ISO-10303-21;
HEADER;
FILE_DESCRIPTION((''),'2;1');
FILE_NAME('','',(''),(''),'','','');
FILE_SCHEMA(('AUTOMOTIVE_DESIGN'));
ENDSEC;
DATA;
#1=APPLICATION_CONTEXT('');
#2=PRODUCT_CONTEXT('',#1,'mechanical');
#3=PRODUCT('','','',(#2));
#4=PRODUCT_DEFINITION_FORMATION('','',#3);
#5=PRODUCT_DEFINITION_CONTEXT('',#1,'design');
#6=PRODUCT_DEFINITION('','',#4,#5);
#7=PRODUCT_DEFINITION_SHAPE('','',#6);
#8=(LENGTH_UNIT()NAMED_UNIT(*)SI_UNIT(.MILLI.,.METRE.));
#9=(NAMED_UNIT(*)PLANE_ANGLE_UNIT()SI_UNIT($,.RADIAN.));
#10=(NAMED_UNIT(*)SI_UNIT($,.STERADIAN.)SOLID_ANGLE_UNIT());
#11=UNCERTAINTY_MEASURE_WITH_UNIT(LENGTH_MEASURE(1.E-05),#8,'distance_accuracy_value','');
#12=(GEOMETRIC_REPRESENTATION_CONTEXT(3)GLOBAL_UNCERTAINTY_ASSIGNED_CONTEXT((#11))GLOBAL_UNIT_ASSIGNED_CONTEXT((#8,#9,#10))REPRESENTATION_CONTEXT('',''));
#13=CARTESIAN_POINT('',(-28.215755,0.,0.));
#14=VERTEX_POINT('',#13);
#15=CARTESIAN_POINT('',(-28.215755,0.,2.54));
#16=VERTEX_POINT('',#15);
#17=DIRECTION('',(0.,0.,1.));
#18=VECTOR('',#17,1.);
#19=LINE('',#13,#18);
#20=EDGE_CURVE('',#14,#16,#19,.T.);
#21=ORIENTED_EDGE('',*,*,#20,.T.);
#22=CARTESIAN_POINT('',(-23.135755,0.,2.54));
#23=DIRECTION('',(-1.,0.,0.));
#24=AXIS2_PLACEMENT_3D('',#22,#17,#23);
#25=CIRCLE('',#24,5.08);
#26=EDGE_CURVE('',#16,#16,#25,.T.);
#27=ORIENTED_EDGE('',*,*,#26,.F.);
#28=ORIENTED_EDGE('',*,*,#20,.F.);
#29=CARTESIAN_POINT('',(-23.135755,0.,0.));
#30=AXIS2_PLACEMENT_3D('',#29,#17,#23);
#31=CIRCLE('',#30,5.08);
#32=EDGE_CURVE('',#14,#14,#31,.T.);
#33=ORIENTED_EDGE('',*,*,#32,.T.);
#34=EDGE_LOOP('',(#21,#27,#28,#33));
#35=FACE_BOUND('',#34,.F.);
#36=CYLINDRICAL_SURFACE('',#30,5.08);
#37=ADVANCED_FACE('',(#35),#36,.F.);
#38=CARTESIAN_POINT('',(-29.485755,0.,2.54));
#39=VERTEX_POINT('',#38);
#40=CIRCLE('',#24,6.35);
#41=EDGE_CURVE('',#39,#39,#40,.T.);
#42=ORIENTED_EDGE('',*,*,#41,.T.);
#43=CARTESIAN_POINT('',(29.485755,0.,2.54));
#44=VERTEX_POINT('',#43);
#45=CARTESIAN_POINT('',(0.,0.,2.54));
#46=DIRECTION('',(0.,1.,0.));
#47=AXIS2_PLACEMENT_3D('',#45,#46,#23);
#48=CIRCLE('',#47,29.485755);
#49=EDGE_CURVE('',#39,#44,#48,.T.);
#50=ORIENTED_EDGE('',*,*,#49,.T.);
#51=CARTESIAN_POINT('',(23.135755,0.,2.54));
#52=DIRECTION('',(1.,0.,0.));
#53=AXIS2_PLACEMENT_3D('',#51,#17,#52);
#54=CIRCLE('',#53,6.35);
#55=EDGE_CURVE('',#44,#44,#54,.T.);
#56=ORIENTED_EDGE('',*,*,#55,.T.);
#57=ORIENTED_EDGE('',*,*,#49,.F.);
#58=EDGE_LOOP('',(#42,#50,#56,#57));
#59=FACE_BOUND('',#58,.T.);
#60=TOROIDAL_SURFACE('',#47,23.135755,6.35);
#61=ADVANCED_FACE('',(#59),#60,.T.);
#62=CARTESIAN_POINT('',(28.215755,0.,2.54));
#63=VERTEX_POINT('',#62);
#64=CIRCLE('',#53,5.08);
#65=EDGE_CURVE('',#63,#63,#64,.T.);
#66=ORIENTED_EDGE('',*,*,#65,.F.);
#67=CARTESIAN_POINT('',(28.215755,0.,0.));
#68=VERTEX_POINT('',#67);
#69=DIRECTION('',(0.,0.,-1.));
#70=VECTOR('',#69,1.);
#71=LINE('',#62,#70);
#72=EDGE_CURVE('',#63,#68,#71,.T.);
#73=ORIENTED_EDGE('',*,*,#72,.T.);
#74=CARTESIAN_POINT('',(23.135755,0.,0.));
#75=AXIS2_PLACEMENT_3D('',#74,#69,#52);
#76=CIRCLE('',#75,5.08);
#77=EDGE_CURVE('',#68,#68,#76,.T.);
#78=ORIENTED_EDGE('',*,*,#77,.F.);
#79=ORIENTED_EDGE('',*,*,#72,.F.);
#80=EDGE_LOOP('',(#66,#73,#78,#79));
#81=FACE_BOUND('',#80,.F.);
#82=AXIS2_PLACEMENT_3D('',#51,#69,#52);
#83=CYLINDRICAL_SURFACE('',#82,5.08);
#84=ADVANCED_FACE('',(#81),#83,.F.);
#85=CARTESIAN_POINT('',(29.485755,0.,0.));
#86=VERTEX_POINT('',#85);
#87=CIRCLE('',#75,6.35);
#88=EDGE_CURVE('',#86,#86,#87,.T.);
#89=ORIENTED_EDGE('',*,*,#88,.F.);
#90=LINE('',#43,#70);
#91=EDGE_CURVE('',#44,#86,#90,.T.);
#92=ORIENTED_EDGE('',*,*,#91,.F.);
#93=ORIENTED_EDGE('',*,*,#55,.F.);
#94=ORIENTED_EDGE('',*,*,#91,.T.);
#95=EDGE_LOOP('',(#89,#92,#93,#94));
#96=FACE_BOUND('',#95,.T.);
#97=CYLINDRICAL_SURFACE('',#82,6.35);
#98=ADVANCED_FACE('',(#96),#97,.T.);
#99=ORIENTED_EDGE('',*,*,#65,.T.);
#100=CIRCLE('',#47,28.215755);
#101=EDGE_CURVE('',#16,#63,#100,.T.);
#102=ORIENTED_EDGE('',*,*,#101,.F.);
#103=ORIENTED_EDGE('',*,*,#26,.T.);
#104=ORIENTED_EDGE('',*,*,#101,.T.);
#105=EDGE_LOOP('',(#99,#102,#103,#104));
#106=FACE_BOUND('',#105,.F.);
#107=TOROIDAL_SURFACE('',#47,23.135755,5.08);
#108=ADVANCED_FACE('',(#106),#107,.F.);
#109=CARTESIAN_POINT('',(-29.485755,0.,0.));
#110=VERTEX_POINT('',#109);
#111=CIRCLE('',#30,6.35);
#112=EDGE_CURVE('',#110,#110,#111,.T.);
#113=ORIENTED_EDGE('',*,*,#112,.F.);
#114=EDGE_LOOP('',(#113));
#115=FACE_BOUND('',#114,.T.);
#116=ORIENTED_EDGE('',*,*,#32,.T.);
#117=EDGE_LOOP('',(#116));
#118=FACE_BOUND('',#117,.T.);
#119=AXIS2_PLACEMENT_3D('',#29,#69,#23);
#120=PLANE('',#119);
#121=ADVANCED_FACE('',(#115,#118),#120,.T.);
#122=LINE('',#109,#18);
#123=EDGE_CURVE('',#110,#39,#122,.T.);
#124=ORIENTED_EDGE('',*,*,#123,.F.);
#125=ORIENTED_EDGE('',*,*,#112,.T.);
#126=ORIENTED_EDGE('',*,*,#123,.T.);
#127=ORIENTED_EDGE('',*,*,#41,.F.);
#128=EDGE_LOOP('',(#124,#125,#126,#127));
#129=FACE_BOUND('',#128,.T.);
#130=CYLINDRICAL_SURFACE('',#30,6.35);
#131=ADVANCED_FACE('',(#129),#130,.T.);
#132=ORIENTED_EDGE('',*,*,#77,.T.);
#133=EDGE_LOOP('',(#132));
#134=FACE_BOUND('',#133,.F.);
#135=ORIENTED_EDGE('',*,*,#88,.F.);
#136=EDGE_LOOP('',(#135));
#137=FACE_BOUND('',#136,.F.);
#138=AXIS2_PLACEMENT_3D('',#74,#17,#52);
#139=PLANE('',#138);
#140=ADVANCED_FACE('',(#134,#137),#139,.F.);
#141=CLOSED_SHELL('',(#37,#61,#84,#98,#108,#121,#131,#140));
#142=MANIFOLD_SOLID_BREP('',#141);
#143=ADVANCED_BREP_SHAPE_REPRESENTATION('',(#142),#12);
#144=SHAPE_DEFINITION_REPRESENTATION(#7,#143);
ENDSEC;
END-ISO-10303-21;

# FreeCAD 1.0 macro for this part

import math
import FreeCAD as App
import Part
import Sketcher
from FreeCAD import Vector
Q = App.Units.Quantity


def faces_at(feature, points):
    """Names of the faces that lie closest to the given points."""
    faces = feature.Shape.Faces
    near = lambda p: min(range(len(faces)), key=lambda i: faces[i].distToShape(Part.Vertex(*p))[0])
    return sorted({f"Face{near(p) + 1}" for p in points})

doc = App.newDocument("Part")
body = doc.addObject("PartDesign::Body", "Body")

# Sketch on XY plane
sketch1 = body.newObject("Sketcher::SketchObject", "Sketch")
sketch1.AttachmentSupport = (doc.getObject("XY_Plane"), [""])
sketch1.MapMode = "FlatFace"
sketch1.addGeometry(Part.Circle(Vector(23.135755, 0, 0), Vector(0, 0, 1), 6.35), False)
sketch1.addConstraint(Sketcher.Constraint("PointOnObject", 0, 3, -1))
sketch1.addConstraint(Sketcher.Constraint("Diameter", 0, Q("0.5 in")))
sketch1.addConstraint(Sketcher.Constraint("DistanceX", -1, 1, 0, 3, Q("23.135755 mm")))

# Sketch on XZ plane
sketch2 = body.newObject("Sketcher::SketchObject", "Sketch001")
sketch2.AttachmentSupport = (doc.getObject("XZ_Plane"), [""])
sketch2.MapMode = "FlatFace"
sketch2.addGeometry(Part.LineSegment(Vector(-23.135755, 0, 0), Vector(-23.135755, 2.54, 0)), False)
sketch2.addGeometry(Part.ArcOfCircle(Part.Circle(Vector(0, 2.54, 0), Vector(0, 0, 1), 23.135755), math.radians(0), math.radians(180)), False)
sketch2.addGeometry(Part.LineSegment(Vector(23.135755, 2.54, 0), Vector(23.135755, 0, 0)), False)
sketch2.addConstraint(Sketcher.Constraint("Tangent", 0, 2, 1, 2))
sketch2.addConstraint(Sketcher.Constraint("Tangent", 1, 1, 2, 1))
sketch2.addConstraint(Sketcher.Constraint("Vertical", 0))
sketch2.addConstraint(Sketcher.Constraint("Vertical", 2))
sketch2.addConstraint(Sketcher.Constraint("Symmetric", 0, 1, 2, 2, -1, 1))
sketch2.addConstraint(Sketcher.Constraint("PointOnObject", 0, 1, -1))
sketch2.addConstraint(Sketcher.Constraint("DistanceY", 0, 1, 0, 2, Q("0.1 in")))
sketch2.addConstraint(Sketcher.Constraint("Radius", 1, Q("23.135755 mm")))
doc.recompute()

additivepipe = body.newObject("PartDesign::AdditivePipe", "AdditivePipe")
additivepipe.Profile = sketch1
additivepipe.Spine = (sketch2, ["Edge1", "Edge2", "Edge3"])
doc.recompute()

thickness = body.newObject("PartDesign::Thickness", "Thickness")
thickness.Base = (additivepipe, faces_at(additivepipe, [(-23.136, 0, 0), (23.136, 0, 0)]))
thickness.Value = Q("0.05 in")
thickness.Reversed = True
thickness.Join = "Arc"

doc.recompute()
